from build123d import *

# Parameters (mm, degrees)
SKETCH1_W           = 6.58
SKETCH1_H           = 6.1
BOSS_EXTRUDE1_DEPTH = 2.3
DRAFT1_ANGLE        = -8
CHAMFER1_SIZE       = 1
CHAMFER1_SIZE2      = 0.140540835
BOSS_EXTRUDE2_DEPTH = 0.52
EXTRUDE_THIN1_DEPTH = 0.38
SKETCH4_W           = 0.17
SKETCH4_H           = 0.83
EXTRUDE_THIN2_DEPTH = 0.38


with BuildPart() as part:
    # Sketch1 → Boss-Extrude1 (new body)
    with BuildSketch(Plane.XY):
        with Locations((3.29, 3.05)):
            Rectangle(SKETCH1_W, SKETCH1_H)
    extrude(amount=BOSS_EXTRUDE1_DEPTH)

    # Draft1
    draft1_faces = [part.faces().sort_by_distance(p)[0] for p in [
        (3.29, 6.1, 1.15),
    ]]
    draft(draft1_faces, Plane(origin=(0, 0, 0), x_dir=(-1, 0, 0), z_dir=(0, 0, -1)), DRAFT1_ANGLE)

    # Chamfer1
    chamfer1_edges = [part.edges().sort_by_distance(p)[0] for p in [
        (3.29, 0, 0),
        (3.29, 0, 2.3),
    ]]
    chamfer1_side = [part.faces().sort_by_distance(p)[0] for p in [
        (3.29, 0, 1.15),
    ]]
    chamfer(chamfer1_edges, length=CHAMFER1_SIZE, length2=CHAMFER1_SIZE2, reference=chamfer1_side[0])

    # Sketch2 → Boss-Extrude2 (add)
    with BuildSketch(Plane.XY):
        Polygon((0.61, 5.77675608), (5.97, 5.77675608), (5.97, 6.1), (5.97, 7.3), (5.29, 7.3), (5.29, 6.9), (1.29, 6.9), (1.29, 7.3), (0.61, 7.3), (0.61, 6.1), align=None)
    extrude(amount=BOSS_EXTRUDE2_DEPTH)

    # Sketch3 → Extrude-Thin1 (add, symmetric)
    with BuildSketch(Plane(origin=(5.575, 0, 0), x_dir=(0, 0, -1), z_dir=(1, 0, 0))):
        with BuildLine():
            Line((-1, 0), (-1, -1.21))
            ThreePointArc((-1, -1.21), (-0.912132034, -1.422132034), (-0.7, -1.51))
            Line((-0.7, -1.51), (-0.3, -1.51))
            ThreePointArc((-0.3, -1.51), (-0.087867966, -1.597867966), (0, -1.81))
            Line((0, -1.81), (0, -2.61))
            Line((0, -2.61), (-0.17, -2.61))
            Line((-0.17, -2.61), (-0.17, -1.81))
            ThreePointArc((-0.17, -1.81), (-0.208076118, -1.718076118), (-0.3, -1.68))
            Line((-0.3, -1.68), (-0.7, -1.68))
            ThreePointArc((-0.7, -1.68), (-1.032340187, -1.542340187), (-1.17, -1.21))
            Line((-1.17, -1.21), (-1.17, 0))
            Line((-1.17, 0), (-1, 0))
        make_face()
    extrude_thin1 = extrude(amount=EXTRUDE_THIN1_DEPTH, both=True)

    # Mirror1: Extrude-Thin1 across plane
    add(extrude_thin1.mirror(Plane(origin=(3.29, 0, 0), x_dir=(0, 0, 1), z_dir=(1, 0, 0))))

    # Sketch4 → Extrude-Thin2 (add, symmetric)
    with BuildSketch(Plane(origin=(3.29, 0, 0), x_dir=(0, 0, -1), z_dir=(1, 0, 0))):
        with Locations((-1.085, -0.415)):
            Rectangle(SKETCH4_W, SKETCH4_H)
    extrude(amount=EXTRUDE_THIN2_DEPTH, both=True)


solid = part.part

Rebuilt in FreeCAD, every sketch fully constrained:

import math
import FreeCAD as App
import Part
import Sketcher

V = App.Vector
Q = App.Units.Quantity


def edges_at(feature, points):
    """Names of the edges that pass closest to the given points."""
    edges = feature.Shape.Edges
    near = lambda p: min(range(len(edges)), key=lambda i: edges[i].distToShape(Part.Vertex(*p))[0])
    return sorted({f"Edge{near(p) + 1}" for p in points})


def faces_at(feature, points):
    """Names of the faces that lie closest to the given points."""
    faces = feature.Shape.Faces
    near = lambda p: min(range(len(faces)), key=lambda i: faces[i].distToShape(Part.Vertex(*p))[0])
    return sorted({f"Face{near(p) + 1}" for p in points})

doc = App.newDocument("Part")
params = doc.addObject("Spreadsheet::Sheet", "Params")
for row, (alias, value) in enumerate([
    ("sketch1_height", "6.1 mm"),
    ("sketch1_width", "6.58 mm"),
    ("pad1_length", "2.3 mm"),
    ("draft_angle", "8 deg"),
    ("chamfer_size", "1 mm"),
    ("chamfer_size2", "0.140541 mm"),
    ("sketch2_width", "4 mm"),
    ("sketch2_height", "0.4 mm"),
    ("sketch2_width2", "5.36 mm"),
    ("pad2_length", "0.52 mm"),
    ("sketch3_radius", "0.3 mm"),
    ("sketch3_radius2", "0.47 mm"),
    ("sketch3_width", "0.8 mm"),
    ("sketch3_height", "0.4 mm"),
    ("sketch3_width2", "1.21 mm"),
    ("pad3_length", "0.76 mm"),
    ("sketch4_width", "0.83 mm"),
    ("sketch4_height", "0.17 mm"),
    ("pad4_length", "0.76 mm"),
], start=1):
    params.set(f"A{row}", alias)
    params.set(f"B{row}", "=" + value)
    params.setAlias(f"B{row}", alias)

body = doc.addObject("PartDesign::Body", "Body")

sketch1 = body.newObject("Sketcher::SketchObject", "Sketch")
sketch1.AttachmentSupport = (doc.getObject("XY_Plane"), [""])
sketch1.MapMode = "FlatFace"
sketch1.addGeometry([
    Part.LineSegment(V(0, 6.1, 0), V(0, 0, 0)),
    Part.LineSegment(V(0, 0, 0), V(6.58, 0, 0)),
    Part.LineSegment(V(6.58, 0, 0), V(6.58, 6.1, 0)),
    Part.LineSegment(V(6.58, 6.1, 0), V(0, 6.1, 0)),
], False)
sketch1.addConstraint([
    Sketcher.Constraint("Coincident", 0, 2, 1, 1),
    Sketcher.Constraint("Coincident", 1, 2, 2, 1),
    Sketcher.Constraint("Coincident", 2, 2, 3, 1),
    Sketcher.Constraint("Coincident", 3, 2, 0, 1),
    Sketcher.Constraint("Vertical", 0),
    Sketcher.Constraint("Horizontal", 1),
    Sketcher.Constraint("Vertical", 2),
    Sketcher.Constraint("Horizontal", 3),
    Sketcher.Constraint("Coincident", 0, 2, -1, 1),
    Sketcher.Constraint("DistanceY", 0, 2, 0, 1, Q("6.1 mm")),
    Sketcher.Constraint("DistanceX", 1, 1, 1, 2, Q("6.58 mm")),
])
sketch1.setExpression("Constraints[9]", "Params.sketch1_height")
sketch1.setExpression("Constraints[10]", "Params.sketch1_width")
pad1 = body.newObject("PartDesign::Pad", "Pad")
pad1.Profile = sketch1
pad1.setExpression("Length", "Params.pad1_length")
doc.recompute()

draft = body.newObject("PartDesign::Draft", "Draft")
draft.Base = (pad1, faces_at(pad1, [(3.29, 6.1, 1.15)]))
draft.NeutralPlane = (doc.getObject("XY_Plane"), [""])
draft.setExpression("Angle", "Params.draft_angle")
draft.Reversed = False
doc.recompute()

chamfer = body.newObject("PartDesign::Chamfer", "Chamfer")
chamfer.Base = (draft, edges_at(draft, [(3.29, 0, 0), (3.29, 0, 2.3)]))
chamfer.ChamferType = "Two distances"
chamfer.setExpression("Size", "Params.chamfer_size")
chamfer.setExpression("Size2", "Params.chamfer_size2")

sketch2 = body.newObject("Sketcher::SketchObject", "Sketch001")
sketch2.AttachmentSupport = (doc.getObject("XY_Plane"), [""])
sketch2.MapMode = "FlatFace"
sketch2.addGeometry([
    Part.LineSegment(V(0.61, 5.776756, 0), V(5.97, 5.776756, 0)),
    Part.LineSegment(V(5.97, 5.776756, 0), V(5.97, 7.3, 0)),
    Part.LineSegment(V(5.97, 7.3, 0), V(5.29, 7.3, 0)),
    Part.LineSegment(V(5.29, 7.3, 0), V(5.29, 6.9, 0)),
    Part.LineSegment(V(5.29, 6.9, 0), V(1.29, 6.9, 0)),
    Part.LineSegment(V(1.29, 6.9, 0), V(1.29, 7.3, 0)),
    Part.LineSegment(V(1.29, 7.3, 0), V(0.61, 7.3, 0)),
    Part.LineSegment(V(0.61, 7.3, 0), V(0.61, 5.776756, 0)),
], False)
sketch2.addConstraint([
    Sketcher.Constraint("Coincident", 0, 2, 1, 1),
    Sketcher.Constraint("Coincident", 1, 2, 2, 1),
    Sketcher.Constraint("Coincident", 2, 2, 3, 1),
    Sketcher.Constraint("Coincident", 3, 2, 4, 1),
    Sketcher.Constraint("Coincident", 4, 2, 5, 1),
    Sketcher.Constraint("Coincident", 5, 2, 6, 1),
    Sketcher.Constraint("Coincident", 6, 2, 7, 1),
    Sketcher.Constraint("Coincident", 7, 2, 0, 1),
    Sketcher.Constraint("Horizontal", 0),
    Sketcher.Constraint("Vertical", 1),
    Sketcher.Constraint("Horizontal", 2),
    Sketcher.Constraint("Vertical", 3),
    Sketcher.Constraint("Horizontal", 4),
    Sketcher.Constraint("Vertical", 5),
    Sketcher.Constraint("Horizontal", 6),
    Sketcher.Constraint("Vertical", 7),
    Sketcher.Constraint("Horizontal", 2, 2, 5, 2),
    Sketcher.Constraint("Equal", 2, 6),
    Sketcher.Constraint("DistanceX", 4, 2, 4, 1, Q("4 mm")),
    Sketcher.Constraint("DistanceY", 3, 2, 3, 1, Q("0.4 mm")),
    Sketcher.Constraint("DistanceX", 0, 1, 0, 2, Q("5.36 mm")),
    Sketcher.Constraint("DistanceY", -1, 1, 1, 2, Q("7.3 mm")),
    Sketcher.Constraint("DistanceX", -1, 1, 0, 2, Q("5.97 mm")),
    Sketcher.Constraint("DistanceY", 1, 1, 1, 2, Q("1.523244 mm")),
])
sketch2.setExpression("Constraints[18]", "Params.sketch2_width")
sketch2.setExpression("Constraints[19]", "Params.sketch2_height")
sketch2.setExpression("Constraints[20]", "Params.sketch2_width2")
pad2 = body.newObject("PartDesign::Pad", "Pad001")
pad2.Profile = sketch2
pad2.setExpression("Length", "Params.pad2_length")

sketch3 = body.newObject("Sketcher::SketchObject", "Sketch002")
sketch3.AttachmentSupport = (doc.getObject("YZ_Plane"), [""])
sketch3.MapMode = "FlatFace"
sketch3.AttachmentOffset = App.Placement(V(0, 0, 5.575), App.Rotation())
sketch3.addGeometry([
    Part.LineSegment(V(-1.21, 1, 0), V(0, 1, 0)),
    Part.LineSegment(V(0, 1, 0), V(0, 1.17, 0)),
    Part.LineSegment(V(0, 1.17, 0), V(-1.21, 1.17, 0)),
    Part.ArcOfCircle(Part.Circle(V(-1.21, 0.7, 0), V(0, 0, 1), 0.47), math.radians(90), math.radians(180)),
    Part.LineSegment(V(-1.68, 0.7, 0), V(-1.68, 0.3, 0)),
    Part.ArcOfCircle(Part.Circle(V(-1.81, 0.3, 0), V(0, 0, 1), 0.13), math.radians(-90.000001), math.radians(0.000001)),
    Part.LineSegment(V(-1.81, 0.17, 0), V(-2.61, 0.17, 0)),
    Part.LineSegment(V(-2.61, 0.17, 0), V(-2.61, 0, 0)),
    Part.LineSegment(V(-2.61, 0, 0), V(-1.81, 0, 0)),
    Part.ArcOfCircle(Part.Circle(V(-1.81, 0.3, 0), V(0, 0, 1), 0.3), math.radians(-90), math.radians(0)),
    Part.LineSegment(V(-1.51, 0.3, 0), V(-1.51, 0.7, 0)),
    Part.ArcOfCircle(Part.Circle(V(-1.21, 0.7, 0), V(0, 0, 1), 0.3), math.radians(90), math.radians(180)),
], False)
sketch3.addConstraint([
    Sketcher.Constraint("Coincident", 0, 2, 1, 1),
    Sketcher.Constraint("Coincident", 1, 2, 2, 1),
    Sketcher.Constraint("Tangent", 2, 2, 3, 1),
    Sketcher.Constraint("Tangent", 3, 2, 4, 1),
    Sketcher.Constraint("Tangent", 4, 2, 5, 2),
    Sketcher.Constraint("Tangent", 5, 1, 6, 1),
    Sketcher.Constraint("Coincident", 6, 2, 7, 1),
    Sketcher.Constraint("Coincident", 7, 2, 8, 1),
    Sketcher.Constraint("Tangent", 8, 2, 9, 1),
    Sketcher.Constraint("Tangent", 9, 2, 10, 1),
    Sketcher.Constraint("Tangent", 10, 2, 11, 2),
    Sketcher.Constraint("Tangent", 11, 1, 0, 1),
    Sketcher.Constraint("Horizontal", 0),
    Sketcher.Constraint("Vertical", 1),
    Sketcher.Constraint("Horizontal", 2),
    Sketcher.Constraint("Vertical", 4),
    Sketcher.Constraint("Horizontal", 6),
    Sketcher.Constraint("Vertical", 7),
    Sketcher.Constraint("Horizontal", 8),
    Sketcher.Constraint("Vertical", 10),
    Sketcher.Constraint("Coincident", 9, 3, 5, 3),
    Sketcher.Constraint("Coincident", 11, 3, 3, 3),
    Sketcher.Constraint("Equal", 9, 11),
    Sketcher.Constraint("PointOnObject", 0, 2, -2),
    Sketcher.Constraint("PointOnObject", 7, 2, -1),
    Sketcher.Constraint("Radius", 9, Q("0.3 mm")),
    Sketcher.Constraint("Radius", 3, Q("0.47 mm")),
    Sketcher.Constraint("DistanceX", 6, 2, 6, 1, Q("0.8 mm")),
    Sketcher.Constraint("DistanceY", 4, 2, 4, 1, Q("0.4 mm")),
    Sketcher.Constraint("DistanceX", 0, 1, 0, 2, Q("1.21 mm")),
])
sketch3.setExpression("Constraints[25]", "Params.sketch3_radius")
sketch3.setExpression("Constraints[26]", "Params.sketch3_radius2")
sketch3.setExpression("Constraints[27]", "Params.sketch3_width")
sketch3.setExpression("Constraints[28]", "Params.sketch3_height")
sketch3.setExpression("Constraints[29]", "Params.sketch3_width2")
pad3 = body.newObject("PartDesign::Pad", "Pad002")
pad3.Profile = sketch3
pad3.setExpression("Length", "Params.pad3_length")
pad3.Midplane = True
doc.recompute()

datumplane = body.newObject("PartDesign::Plane", "DatumPlane")
datumplane.AttachmentSupport = (doc.getObject("YZ_Plane"), [""])
datumplane.MapMode = "FlatFace"
datumplane.AttachmentOffset = App.Placement(V(0, 0, 3.29), App.Rotation())
mirrored = body.newObject("PartDesign::Mirrored", "Mirrored")
mirrored.Originals = [pad3]
mirrored.MirrorPlane = (datumplane, [""])
body.Tip = mirrored

sketch4 = body.newObject("Sketcher::SketchObject", "Sketch003")
sketch4.AttachmentSupport = (doc.getObject("YZ_Plane"), [""])
sketch4.MapMode = "FlatFace"
sketch4.AttachmentOffset = App.Placement(V(0, 0, 3.29), App.Rotation())
sketch4.addGeometry([
    Part.LineSegment(V(0, 1.17, 0), V(-0.83, 1.17, 0)),
    Part.LineSegment(V(-0.83, 1.17, 0), V(-0.83, 1, 0)),
    Part.LineSegment(V(-0.83, 1, 0), V(0, 1, 0)),
    Part.LineSegment(V(0, 1, 0), V(0, 1.17, 0)),
], False)
sketch4.addConstraint([
    Sketcher.Constraint("Coincident", 0, 2, 1, 1),
    Sketcher.Constraint("Coincident", 1, 2, 2, 1),
    Sketcher.Constraint("Coincident", 2, 2, 3, 1),
    Sketcher.Constraint("Coincident", 3, 2, 0, 1),
    Sketcher.Constraint("Horizontal", 0),
    Sketcher.Constraint("Vertical", 1),
    Sketcher.Constraint("Horizontal", 2),
    Sketcher.Constraint("Vertical", 3),
    Sketcher.Constraint("PointOnObject", 2, 2, -2),
    Sketcher.Constraint("DistanceY", -1, 1, 1, 2, Q("1 mm")),
    Sketcher.Constraint("DistanceX", 0, 2, 0, 1, Q("0.83 mm")),
    Sketcher.Constraint("DistanceY", 1, 2, 1, 1, Q("0.17 mm")),
])
sketch4.setExpression("Constraints[10]", "Params.sketch4_width")
sketch4.setExpression("Constraints[11]", "Params.sketch4_height")
pad4 = body.newObject("PartDesign::Pad", "Pad003")
pad4.Profile = sketch4
pad4.setExpression("Length", "Params.pad4_length")
pad4.Midplane = True

doc.recompute()
